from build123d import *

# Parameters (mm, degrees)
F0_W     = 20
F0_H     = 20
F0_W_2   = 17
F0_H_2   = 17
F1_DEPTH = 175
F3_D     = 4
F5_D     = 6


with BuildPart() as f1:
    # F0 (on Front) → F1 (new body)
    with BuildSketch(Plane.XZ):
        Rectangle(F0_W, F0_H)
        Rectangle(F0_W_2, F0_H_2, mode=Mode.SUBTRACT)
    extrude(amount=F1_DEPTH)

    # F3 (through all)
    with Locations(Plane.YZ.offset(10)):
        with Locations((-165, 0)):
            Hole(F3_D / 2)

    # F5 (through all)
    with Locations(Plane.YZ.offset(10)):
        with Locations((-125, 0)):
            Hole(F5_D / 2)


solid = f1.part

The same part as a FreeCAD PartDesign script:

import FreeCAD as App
import Part
import Sketcher

doc = App.newDocument("Part")
body = doc.addObject("PartDesign::Body", "Body")

# Sketch on XZ plane
sketch1 = doc.addObject("Sketcher::SketchObject", "Sketch")
body.addObject(sketch1)
sketch1.AttachmentSupport = (doc.XZ_Plane, [""])
sketch1.MapMode = "FlatFace"
sketch1.addGeometry([
    Part.LineSegment(App.Vector(-10, 10, 0), App.Vector(-10, -10, 0)),  # 0
    Part.LineSegment(App.Vector(-10, -10, 0), App.Vector(10, -10, 0)),  # 1
    Part.LineSegment(App.Vector(10, -10, 0), App.Vector(10, 10, 0)),  # 2
    Part.LineSegment(App.Vector(10, 10, 0), App.Vector(-10, 10, 0)),  # 3
    Part.LineSegment(App.Vector(8.5, -8.5, 0), App.Vector(-8.5, -8.5, 0)),  # 4
    Part.LineSegment(App.Vector(-8.5, -8.5, 0), App.Vector(-8.5, 8.5, 0)),  # 5
    Part.LineSegment(App.Vector(-8.5, 8.5, 0), App.Vector(8.5, 8.5, 0)),  # 6
    Part.LineSegment(App.Vector(8.5, 8.5, 0), App.Vector(8.5, -8.5, 0)),  # 7
], False)
sketch1.addConstraint([
    Sketcher.Constraint("Coincident", 0, 2, 1, 1),
    Sketcher.Constraint("Coincident", 1, 2, 2, 1),
    Sketcher.Constraint("Coincident", 2, 2, 3, 1),
    Sketcher.Constraint("Coincident", 3, 2, 0, 1),
    Sketcher.Constraint("Coincident", 4, 2, 5, 1),
    Sketcher.Constraint("Coincident", 5, 2, 6, 1),
    Sketcher.Constraint("Coincident", 6, 2, 7, 1),
    Sketcher.Constraint("Coincident", 7, 2, 4, 1),
    Sketcher.Constraint("Vertical", 0),
    Sketcher.Constraint("Horizontal", 1),
    Sketcher.Constraint("Vertical", 2),
    Sketcher.Constraint("Horizontal", 3),
    Sketcher.Constraint("Horizontal", 4),
    Sketcher.Constraint("Vertical", 5),
    Sketcher.Constraint("Horizontal", 6),
    Sketcher.Constraint("Vertical", 7),
    Sketcher.Constraint("Symmetric", 0, 2, 2, 2, -1, 1),
    Sketcher.Constraint("Symmetric", 4, 2, 6, 2, -1, 1),
    Sketcher.Constraint("Equal", 3, 0),
    Sketcher.Constraint("Equal", 6, 5),
    Sketcher.Constraint("DistanceX", 1, 1, 1, 2, 20.0),
    Sketcher.Constraint("DistanceX", 4, 2, 4, 1, 17.0),
])
pad1 = doc.addObject("PartDesign::Pad", "Pad")
body.addObject(pad1)
pad1.Profile = sketch1
pad1.Length = 175

# Sketch on YZ plane
sketch2 = doc.addObject("Sketcher::SketchObject", "Sketch001")
body.addObject(sketch2)
sketch2.AttachmentSupport = (doc.YZ_Plane, [""])
sketch2.MapMode = "FlatFace"
sketch2.AttachmentOffset = App.Placement(App.Vector(0, 0, 10), App.Rotation())
sketch2.addGeometry(Part.Circle(App.Vector(-165, 0, 0), App.Vector(0, 0, 1), 2), False)
sketch2.addConstraint([
    Sketcher.Constraint("PointOnObject", 0, 3, -1),
    Sketcher.Constraint("Diameter", 0, 4.0),
    Sketcher.Constraint("DistanceX", 0, 3, -1, 1, 165.0),
])
doc.recompute()
hole = doc.addObject("PartDesign::Hole", "Hole")
body.addObject(hole)
hole.Profile = sketch2
hole.ThreadType = "None"
hole.Diameter = 4
hole.DepthType = "ThroughAll"

# Sketch on YZ plane
sketch3 = doc.addObject("Sketcher::SketchObject", "Sketch002")
body.addObject(sketch3)
sketch3.AttachmentSupport = (doc.YZ_Plane, [""])
sketch3.MapMode = "FlatFace"
sketch3.AttachmentOffset = App.Placement(App.Vector(0, 0, 10), App.Rotation())
sketch3.addGeometry(Part.Circle(App.Vector(-125, 0, 0), App.Vector(0, 0, 1), 3), False)
sketch3.addConstraint([
    Sketcher.Constraint("PointOnObject", 0, 3, -1),
    Sketcher.Constraint("Diameter", 0, 6.0),
    Sketcher.Constraint("DistanceX", 0, 3, -1, 1, 125.0),
])
doc.recompute()
hole2 = doc.addObject("PartDesign::Hole", "Hole001")
body.addObject(hole2)
hole2.Profile = sketch3
hole2.ThreadType = "None"
hole2.Diameter = 6
hole2.DepthType = "ThroughAll"

doc.recompute()
